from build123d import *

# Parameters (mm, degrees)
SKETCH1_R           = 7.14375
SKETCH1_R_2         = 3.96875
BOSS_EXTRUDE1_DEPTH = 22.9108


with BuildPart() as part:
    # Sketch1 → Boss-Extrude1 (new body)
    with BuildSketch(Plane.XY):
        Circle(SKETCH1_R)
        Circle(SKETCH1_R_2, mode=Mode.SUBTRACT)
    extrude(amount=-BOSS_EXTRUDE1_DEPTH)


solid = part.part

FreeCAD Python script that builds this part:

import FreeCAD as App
import Part
import Sketcher

V = App.Vector
Q = App.Units.Quantity

doc = App.newDocument("Part")
body = doc.addObject("PartDesign::Body", "Body")

# Sketch on XY plane
sketch1 = doc.addObject("Sketcher::SketchObject", "Sketch")
body.addObject(sketch1)
sketch1.AttachmentSupport = (doc.XY_Plane, [""])
sketch1.MapMode = "FlatFace"
sketch1.addGeometry([
    Part.Circle(V(0, 0, 0), V(0, 0, 1), 7.1),
    Part.Circle(V(0, 0, 0), V(0, 0, 1), 4),
], False)
sketch1.addConstraint([
    Sketcher.Constraint("Coincident", 0, 3, -1, 1),
    Sketcher.Constraint("Coincident", 1, 3, -1, 1),
    Sketcher.Constraint("Diameter", 0, Q("0.5625 in")),
    Sketcher.Constraint("Diameter", 1, Q("0.3125 in")),
])
pad1 = doc.addObject("PartDesign::Pad", "Pad")
body.addObject(pad1)
pad1.Profile = sketch1
pad1.Length = Q("0.902 in")
pad1.Reversed = True

doc.recompute()
